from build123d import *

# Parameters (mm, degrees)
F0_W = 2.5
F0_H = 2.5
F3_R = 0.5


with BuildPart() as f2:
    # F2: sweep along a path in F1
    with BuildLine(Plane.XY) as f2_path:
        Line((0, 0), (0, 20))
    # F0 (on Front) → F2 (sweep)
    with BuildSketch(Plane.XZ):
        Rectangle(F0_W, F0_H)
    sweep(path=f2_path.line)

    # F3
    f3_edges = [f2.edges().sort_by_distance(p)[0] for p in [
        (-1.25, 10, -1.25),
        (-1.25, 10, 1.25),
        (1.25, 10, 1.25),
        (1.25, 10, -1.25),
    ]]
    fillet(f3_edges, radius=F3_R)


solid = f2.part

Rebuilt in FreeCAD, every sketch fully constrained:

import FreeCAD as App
import Part
import Sketcher

V = App.Vector


def edges_at(feature, points):
    """Names of the edges that pass closest to the given points."""
    edges = feature.Shape.Edges
    near = lambda p: min(range(len(edges)), key=lambda i: edges[i].distToShape(Part.Vertex(*p))[0])
    return sorted({f"Edge{near(p) + 1}" for p in points})


def add_polygon(sketch, points):
    """Adds a closed chain of lines whose ends are joined by coincident constraints."""
    first, n = sketch.GeometryCount, len(points)
    for a, b in zip(points, points[1:] + points[:1]):
        sketch.addGeometry(Part.LineSegment(App.Vector(*a, 0), App.Vector(*b, 0)), False)
    for i in range(n):
        sketch.addConstraint(Sketcher.Constraint("Coincident", first + i, 2, first + (i + 1) % n, 1))

doc = App.newDocument("Part")
body = doc.addObject("PartDesign::Body", "Body")

# Sketch on XZ plane
sketch1 = doc.addObject("Sketcher::SketchObject", "Sketch")
body.addObject(sketch1)
sketch1.AttachmentSupport = (doc.XZ_Plane, [""])
sketch1.MapMode = "FlatFace"
add_polygon(sketch1, [(-1.25, 1.25), (-1.25, -1.25), (1.25, -1.25), (1.25, 1.25)])  # lines 0-3
sketch1.addConstraint(Sketcher.Constraint("Vertical", 0))
sketch1.addConstraint(Sketcher.Constraint("Horizontal", 1))
sketch1.addConstraint(Sketcher.Constraint("Vertical", 2))
sketch1.addConstraint(Sketcher.Constraint("Horizontal", 3))
sketch1.addConstraint(Sketcher.Constraint("Symmetric", 0, 2, 2, 2, -1, 1))
sketch1.addConstraint(Sketcher.Constraint("Equal", 3, 0))
sketch1.addConstraint(Sketcher.Constraint("DistanceX", 1, 1, 1, 2, 2.5))

# Sketch on XY plane
sketch2 = doc.addObject("Sketcher::SketchObject", "Sketch001")
body.addObject(sketch2)
sketch2.AttachmentSupport = (doc.XY_Plane, [""])
sketch2.MapMode = "FlatFace"
sketch2.addGeometry(Part.LineSegment(V(0, 0, 0), V(0, 20, 0)), False)
sketch2.addConstraint(Sketcher.Constraint("Vertical", 0))
sketch2.addConstraint(Sketcher.Constraint("Coincident", 0, 1, -1, 1))
sketch2.addConstraint(Sketcher.Constraint("DistanceY", 0, 1, 0, 2, 20.0))
doc.recompute()

additivepipe = doc.addObject("PartDesign::AdditivePipe", "AdditivePipe")
body.addObject(additivepipe)
additivepipe.Profile = sketch1
additivepipe.Spine = (sketch2, ["Edge1"])
doc.recompute()

fillet = doc.addObject("PartDesign::Fillet", "Fillet")
body.addObject(fillet)
fillet.Base = (additivepipe, edges_at(additivepipe, [
    (-1.25, 10, -1.25),
    (-1.25, 10, 1.25),
    (1.25, 10, 1.25),
    (1.25, 10, -1.25),
]))
fillet.Radius = 0.5

doc.recompute()
